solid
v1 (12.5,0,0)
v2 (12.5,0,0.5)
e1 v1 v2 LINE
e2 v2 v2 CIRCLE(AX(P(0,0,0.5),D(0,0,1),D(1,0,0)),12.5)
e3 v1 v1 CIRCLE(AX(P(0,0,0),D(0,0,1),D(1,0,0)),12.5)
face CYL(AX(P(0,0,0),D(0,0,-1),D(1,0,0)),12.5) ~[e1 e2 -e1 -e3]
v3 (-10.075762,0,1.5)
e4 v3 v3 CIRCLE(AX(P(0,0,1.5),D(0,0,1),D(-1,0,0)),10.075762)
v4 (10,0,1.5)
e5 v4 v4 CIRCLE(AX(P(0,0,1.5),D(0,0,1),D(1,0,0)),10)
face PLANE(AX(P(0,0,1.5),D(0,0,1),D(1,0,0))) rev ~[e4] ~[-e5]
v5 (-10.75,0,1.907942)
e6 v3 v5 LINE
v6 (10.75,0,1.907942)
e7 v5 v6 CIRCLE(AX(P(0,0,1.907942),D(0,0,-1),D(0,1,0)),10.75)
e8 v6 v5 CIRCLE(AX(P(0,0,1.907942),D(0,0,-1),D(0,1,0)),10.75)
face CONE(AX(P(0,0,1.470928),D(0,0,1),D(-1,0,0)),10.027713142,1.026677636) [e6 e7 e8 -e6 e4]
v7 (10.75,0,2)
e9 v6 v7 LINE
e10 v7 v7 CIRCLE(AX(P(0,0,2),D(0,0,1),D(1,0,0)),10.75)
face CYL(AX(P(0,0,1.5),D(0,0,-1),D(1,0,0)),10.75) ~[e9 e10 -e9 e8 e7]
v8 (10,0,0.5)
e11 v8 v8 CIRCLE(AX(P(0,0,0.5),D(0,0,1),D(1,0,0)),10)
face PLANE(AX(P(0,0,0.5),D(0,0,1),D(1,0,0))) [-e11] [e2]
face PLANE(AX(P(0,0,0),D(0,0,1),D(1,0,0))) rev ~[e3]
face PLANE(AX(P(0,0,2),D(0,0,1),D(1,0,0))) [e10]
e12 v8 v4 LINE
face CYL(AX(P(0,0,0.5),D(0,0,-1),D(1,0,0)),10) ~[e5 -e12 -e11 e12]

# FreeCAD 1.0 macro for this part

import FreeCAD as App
import Part
import Sketcher

V = App.Vector


def add_polygon(sketch, points):
    """Adds a closed chain of lines whose ends are joined by coincident constraints."""
    first, n = sketch.GeometryCount, len(points)
    for a, b in zip(points, points[1:] + points[:1]):
        sketch.addGeometry(Part.LineSegment(App.Vector(*a, 0), App.Vector(*b, 0)), False)
    for i in range(n):
        sketch.addConstraint(Sketcher.Constraint("Coincident", first + i, 2, first + (i + 1) % n, 1))

doc = App.newDocument("Part")
body = doc.addObject("PartDesign::Body", "Body")

sketch1 = doc.addObject("Sketcher::SketchObject", "Sketch")
body.addObject(sketch1)
sketch1.AttachmentSupport = (doc.XY_Plane, [""])
sketch1.MapMode = "FlatFace"
sketch1.addGeometry(Part.Circle(V(0, 0, 0), V(0, 0, 1), 12.5), False)
sketch1.addConstraint(Sketcher.Constraint("Coincident", 0, 3, -1, 1))
sketch1.addConstraint(Sketcher.Constraint("Diameter", 0, 25.0))
pad1 = doc.addObject("PartDesign::Pad", "Pad")
body.addObject(pad1)
pad1.Profile = sketch1
pad1.Length = 0.5

sketch2 = doc.addObject("Sketcher::SketchObject", "Sketch001")
body.addObject(sketch2)
sketch2.AttachmentSupport = (doc.XY_Plane, [""])
sketch2.MapMode = "FlatFace"
sketch2.AttachmentOffset = App.Placement(V(0, 0, 0.5), App.Rotation())
sketch2.addGeometry(Part.Circle(V(0, 0, 0), V(0, 0, 1), 10), False)
sketch2.addConstraint(Sketcher.Constraint("Coincident", 0, 3, -1, 1))
sketch2.addConstraint(Sketcher.Constraint("Diameter", 0, 20.0))
pad2 = doc.addObject("PartDesign::Pad", "Pad001")
body.addObject(pad2)
pad2.Profile = sketch2
pad2.Length = 1

sketch3 = doc.addObject("Sketcher::SketchObject", "Sketch002")
body.addObject(sketch3)
sketch3.AttachmentSupport = (doc.XY_Plane, [""])
sketch3.MapMode = "FlatFace"
sketch3.AttachmentOffset = App.Placement(V(0, 0, 1.5), App.Rotation())
sketch3.addGeometry(Part.Circle(V(0, 0, 0), V(0, 0, 1), 10.75), False)
sketch3.addConstraint(Sketcher.Constraint("Coincident", 0, 3, -1, 1))
sketch3.addConstraint(Sketcher.Constraint("Diameter", 0, 21.5))
pad3 = doc.addObject("PartDesign::Pad", "Pad002")
body.addObject(pad3)
pad3.Profile = sketch3
pad3.Length = 0.5

sketch4 = doc.addObject("Sketcher::SketchObject", "Sketch003")
body.addObject(sketch4)
sketch4.AttachmentSupport = (doc.XZ_Plane, [""])
sketch4.MapMode = "FlatFace"
add_polygon(sketch4, [(-10.823633, 1.450863), (-10.027713, 1.470928), (-10.823633, 1.952493)])
sketch4.addConstraint(Sketcher.Constraint("Vertical", 2))
sketch4.addConstraint(Sketcher.Constraint("DistanceY", 2, 2, 2, 1, 0.50163))
sketch4.addConstraint(Sketcher.Constraint("DistanceY", -1, 1, 0, 2, 1.470928))
sketch4.addConstraint(Sketcher.Constraint("DistanceX", 1, 2, 0, 2, 0.795919))
sketch4.addConstraint(Sketcher.Constraint("Distance", 0, 0.796172))
sketch4.addConstraint(Sketcher.Constraint("DistanceX", 0, 2, -1, 1, 10.027713))
groove = doc.addObject("PartDesign::Groove", "Groove")
body.addObject(groove)
groove.Profile = sketch4
groove.ReferenceAxis = (sketch4, ["V_Axis"])
groove.Angle = 360

doc.recompute()
